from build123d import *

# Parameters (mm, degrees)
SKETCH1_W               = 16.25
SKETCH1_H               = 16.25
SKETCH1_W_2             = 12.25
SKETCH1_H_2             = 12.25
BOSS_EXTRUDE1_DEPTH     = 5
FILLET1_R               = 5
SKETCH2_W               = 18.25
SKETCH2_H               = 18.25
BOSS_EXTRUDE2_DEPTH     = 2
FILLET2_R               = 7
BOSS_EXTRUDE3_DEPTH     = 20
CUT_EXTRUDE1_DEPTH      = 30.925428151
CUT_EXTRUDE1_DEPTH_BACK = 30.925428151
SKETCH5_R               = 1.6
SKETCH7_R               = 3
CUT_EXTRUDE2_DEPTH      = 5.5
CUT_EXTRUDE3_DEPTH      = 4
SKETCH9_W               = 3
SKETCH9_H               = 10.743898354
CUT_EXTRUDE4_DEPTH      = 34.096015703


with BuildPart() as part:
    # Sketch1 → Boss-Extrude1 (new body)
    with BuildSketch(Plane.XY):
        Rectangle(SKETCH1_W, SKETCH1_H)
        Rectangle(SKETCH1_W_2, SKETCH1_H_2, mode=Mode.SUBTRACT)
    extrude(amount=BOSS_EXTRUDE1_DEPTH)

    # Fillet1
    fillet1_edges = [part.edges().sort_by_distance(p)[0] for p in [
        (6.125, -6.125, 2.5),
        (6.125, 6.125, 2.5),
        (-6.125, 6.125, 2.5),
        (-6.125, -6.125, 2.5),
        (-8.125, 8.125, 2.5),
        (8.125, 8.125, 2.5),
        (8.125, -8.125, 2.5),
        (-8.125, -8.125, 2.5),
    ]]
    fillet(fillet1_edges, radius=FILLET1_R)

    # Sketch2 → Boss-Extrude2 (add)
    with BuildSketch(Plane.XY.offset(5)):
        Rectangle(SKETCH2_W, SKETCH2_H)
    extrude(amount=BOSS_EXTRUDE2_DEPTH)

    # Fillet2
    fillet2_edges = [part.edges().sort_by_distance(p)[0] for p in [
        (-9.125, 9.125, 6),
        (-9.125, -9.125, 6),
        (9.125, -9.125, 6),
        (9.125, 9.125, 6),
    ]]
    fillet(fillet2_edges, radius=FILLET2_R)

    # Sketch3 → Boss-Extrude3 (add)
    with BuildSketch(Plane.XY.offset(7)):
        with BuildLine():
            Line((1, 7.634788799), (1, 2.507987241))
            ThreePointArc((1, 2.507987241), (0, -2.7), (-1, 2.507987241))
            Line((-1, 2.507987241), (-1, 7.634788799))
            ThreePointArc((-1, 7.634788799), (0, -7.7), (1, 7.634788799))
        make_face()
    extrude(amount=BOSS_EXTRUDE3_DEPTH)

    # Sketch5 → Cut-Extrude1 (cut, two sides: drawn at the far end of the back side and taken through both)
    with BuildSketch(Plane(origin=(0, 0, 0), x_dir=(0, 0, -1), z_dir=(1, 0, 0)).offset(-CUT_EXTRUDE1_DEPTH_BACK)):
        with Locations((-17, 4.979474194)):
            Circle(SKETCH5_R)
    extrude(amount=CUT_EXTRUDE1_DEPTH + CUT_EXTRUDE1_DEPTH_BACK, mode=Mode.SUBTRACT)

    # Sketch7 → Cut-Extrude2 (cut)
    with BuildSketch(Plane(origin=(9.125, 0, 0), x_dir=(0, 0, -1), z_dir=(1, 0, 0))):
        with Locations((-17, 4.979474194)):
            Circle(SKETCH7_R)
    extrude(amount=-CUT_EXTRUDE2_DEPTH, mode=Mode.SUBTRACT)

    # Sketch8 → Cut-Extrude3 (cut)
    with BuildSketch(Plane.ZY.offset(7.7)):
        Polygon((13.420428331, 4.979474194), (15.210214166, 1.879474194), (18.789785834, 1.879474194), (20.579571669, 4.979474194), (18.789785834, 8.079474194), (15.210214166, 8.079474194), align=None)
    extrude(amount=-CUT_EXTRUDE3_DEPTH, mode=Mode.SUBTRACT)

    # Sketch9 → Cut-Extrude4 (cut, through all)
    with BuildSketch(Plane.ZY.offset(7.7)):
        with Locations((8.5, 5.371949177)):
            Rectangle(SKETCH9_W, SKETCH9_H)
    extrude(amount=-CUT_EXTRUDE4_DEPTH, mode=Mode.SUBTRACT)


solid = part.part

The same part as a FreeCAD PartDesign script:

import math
import FreeCAD as App
import Part
import Sketcher
Q = App.Units.Quantity


def edges_at(feature, points):
    """Names of the edges that pass closest to the given points."""
    edges = feature.Shape.Edges
    near = lambda p: min(range(len(edges)), key=lambda i: edges[i].distToShape(Part.Vertex(*p))[0])
    return sorted({f"Edge{near(p) + 1}" for p in points})


def add_polygon(sketch, points):
    """Adds a closed chain of lines whose ends are joined by coincident constraints."""
    first, n = sketch.GeometryCount, len(points)
    for a, b in zip(points, points[1:] + points[:1]):
        sketch.addGeometry(Part.LineSegment(App.Vector(*a, 0), App.Vector(*b, 0)), False)
    for i in range(n):
        sketch.addConstraint(Sketcher.Constraint("Coincident", first + i, 2, first + (i + 1) % n, 1))

doc = App.newDocument("Part")
params = doc.addObject("Spreadsheet::Sheet", "Params")
for row, (alias, value) in enumerate([
    ("sketch1_width", "16.25 mm"),
    ("pad1_length", "5 mm"),
    ("fillet_radius", "5 mm"),
    ("sketch2_width", "18.25 mm"),
    ("pad2_length", "2 mm"),
    ("fillet2_radius", "7 mm"),
    ("sketch3_radius", "2.7 mm"),
    ("sketch3_radius2", "7.7 mm"),
    ("pad3_length", "20 mm"),
    ("sketch4_diameter", "3.2 mm"),
    ("sketch5_diameter", "6 mm"),
    ("pocket2_length", "5.5 mm"),
    ("pocket3_length", "4 mm"),
    ("sketch7_height", "3 mm"),
], start=1):
    params.set(f"A{row}", alias)
    params.set(f"B{row}", "=" + value)
    params.setAlias(f"B{row}", alias)

body = doc.addObject("PartDesign::Body", "Body")

sketch1 = body.newObject("Sketcher::SketchObject", "Sketch")
sketch1.AttachmentSupport = (doc.getObject("XY_Plane"), [""])
sketch1.MapMode = "FlatFace"
add_polygon(sketch1, [(-8, 8), (-8, -8), (8, -8), (8, 8)])
add_polygon(sketch1, [(6, -6), (-6, -6), (-6, 6), (6, 6)])
sketch1.addConstraint([
    Sketcher.Constraint("Vertical", 0),
    Sketcher.Constraint("Horizontal", 1),
    Sketcher.Constraint("Vertical", 2),
    Sketcher.Constraint("Horizontal", 3),
    Sketcher.Constraint("Horizontal", 4),
    Sketcher.Constraint("Vertical", 5),
    Sketcher.Constraint("Horizontal", 6),
    Sketcher.Constraint("Vertical", 7),
    Sketcher.Constraint("Symmetric", 0, 2, 2, 2, -1, 1),
    Sketcher.Constraint("Symmetric", 4, 2, 6, 2, -1, 1),
    Sketcher.Constraint("Equal", 3, 0),
    Sketcher.Constraint("Equal", 6, 5),
    Sketcher.Constraint("DistanceX", 0, 2, 4, 2, 2.0),
    Sketcher.Constraint("DistanceX", 1, 1, 1, 2, 16.25),
])
sketch1.setExpression("Constraints[21]", "Params.sketch1_width")
pad1 = body.newObject("PartDesign::Pad", "Pad")
pad1.Profile = sketch1
pad1.setExpression("Length", "Params.pad1_length")
doc.recompute()

fillet = body.newObject("PartDesign::Fillet", "Fillet")
fillet.Base = (pad1, edges_at(pad1, [
    (6.125, -6.125, 2.5),
    (6.125, 6.125, 2.5),
    (-6.125, 6.125, 2.5),
    (-6.125, -6.125, 2.5),
    (-8.125, 8.125, 2.5),
    (8.125, 8.125, 2.5),
    (8.125, -8.125, 2.5),
    (-8.125, -8.125, 2.5),
]))
fillet.setExpression("Radius", "Params.fillet_radius")

sketch2 = body.newObject("Sketcher::SketchObject", "Sketch001")
sketch2.AttachmentSupport = (doc.getObject("XY_Plane"), [""])
sketch2.MapMode = "FlatFace"
sketch2.AttachmentOffset = App.Placement(App.Vector(0, 0, 5), App.Rotation())
add_polygon(sketch2, [(-9, 9), (-9, -9), (9, -9), (9, 9)])
sketch2.addConstraint([
    Sketcher.Constraint("Vertical", 0),
    Sketcher.Constraint("Horizontal", 1),
    Sketcher.Constraint("Vertical", 2),
    Sketcher.Constraint("Horizontal", 3),
    Sketcher.Constraint("Symmetric", 0, 2, 2, 2, -1, 1),
    Sketcher.Constraint("Equal", 3, 0),
    Sketcher.Constraint("DistanceX", 1, 1, 1, 2, 18.25),
])
sketch2.setExpression("Constraints[10]", "Params.sketch2_width")
pad2 = body.newObject("PartDesign::Pad", "Pad001")
pad2.Profile = sketch2
pad2.setExpression("Length", "Params.pad2_length")
doc.recompute()

fillet2 = body.newObject("PartDesign::Fillet", "Fillet001")
fillet2.Base = (pad2, edges_at(pad2, [
    (-9.125, 9.125, 6),
    (-9.125, -9.125, 6),
    (9.125, -9.125, 6),
    (9.125, 9.125, 6),
]))
fillet2.setExpression("Radius", "Params.fillet2_radius")

sketch3 = body.newObject("Sketcher::SketchObject", "Sketch002")
sketch3.AttachmentSupport = (doc.getObject("XY_Plane"), [""])
sketch3.MapMode = "FlatFace"
sketch3.AttachmentOffset = App.Placement(App.Vector(0, 0, 7), App.Rotation())
sketch3.addGeometry([
    Part.LineSegment(App.Vector(1, 7.6, 0), App.Vector(1, 2.5, 0)),
    Part.ArcOfCircle(Part.Circle(App.Vector(0, 0, 0), App.Vector(0, 0, 1), 2.7), math.radians(112), math.radians(428)),
    Part.LineSegment(App.Vector(-1, 2.5, 0), App.Vector(-1, 7.6, 0)),
    Part.ArcOfCircle(Part.Circle(App.Vector(0, 0, 0), App.Vector(0, 0, 1), 7.7), math.radians(97), math.radians(443)),
], False)
sketch3.addConstraint([
    Sketcher.Constraint("Coincident", 0, 2, 1, 2),
    Sketcher.Constraint("Coincident", 1, 1, 2, 1),
    Sketcher.Constraint("Coincident", 2, 2, 3, 1),
    Sketcher.Constraint("Coincident", 3, 2, 0, 1),
    Sketcher.Constraint("Vertical", 0),
    Sketcher.Constraint("Vertical", 2),
    Sketcher.Constraint("Coincident", 1, 3, -1, 1),
    Sketcher.Constraint("Coincident", 3, 3, -1, 1),
    Sketcher.Constraint("Horizontal", 0, 2, 1, 1),
    Sketcher.Constraint("Radius", 1, 2.7),
    Sketcher.Constraint("Radius", 3, 7.7),
    Sketcher.Constraint("DistanceX", -1, 1, 0, 2, 1.0),
])
sketch3.setExpression("Constraints[9]", "Params.sketch3_radius")
sketch3.setExpression("Constraints[10]", "Params.sketch3_radius2")
pad3 = body.newObject("PartDesign::Pad", "Pad002")
pad3.Profile = sketch3
pad3.setExpression("Length", "Params.pad3_length")

sketch4 = body.newObject("Sketcher::SketchObject", "Sketch003")
sketch4.AttachmentSupport = (doc.getObject("YZ_Plane"), [""])
sketch4.MapMode = "FlatFace"
sketch4.addGeometry(Part.Circle(App.Vector(5, 17, 0), App.Vector(0, 0, 1), 1.6), False)
sketch4.addConstraint([
    Sketcher.Constraint("Diameter", 0, 3.2),
    Sketcher.Constraint("DistanceY", -1, 1, 0, 3, 17.0),
    Sketcher.Constraint("DistanceX", -1, 1, 0, 3, 4.979474),
])
sketch4.setExpression("Constraints[0]", "Params.sketch4_diameter")
pocket1 = body.newObject("PartDesign::Pocket", "Pocket")
pocket1.Profile = sketch4
pocket1.Type = "ThroughAll"
pocket1.Midplane = True

sketch5 = body.newObject("Sketcher::SketchObject", "Sketch004")
sketch5.AttachmentSupport = (doc.getObject("YZ_Plane"), [""])
sketch5.MapMode = "FlatFace"
sketch5.AttachmentOffset = App.Placement(App.Vector(0, 0, 9.125), App.Rotation())
sketch5.addGeometry(Part.Circle(App.Vector(5, 17, 0), App.Vector(0, 0, 1), 3), False)
sketch5.addConstraint([
    Sketcher.Constraint("Diameter", 0, 6.0),
    Sketcher.Constraint("DistanceY", -1, 1, 0, 3, 17.0),
    Sketcher.Constraint("DistanceX", -1, 1, 0, 3, 4.979474),
])
sketch5.setExpression("Constraints[0]", "Params.sketch5_diameter")
pocket2 = body.newObject("PartDesign::Pocket", "Pocket001")
pocket2.Profile = sketch5
pocket2.setExpression("Length", "Params.pocket2_length")

sketch6 = body.newObject("Sketcher::SketchObject", "Sketch005")
sketch6.AttachmentSupport = (doc.getObject("YZ_Plane"), [""])
sketch6.MapMode = "FlatFace"
sketch6.AttachmentOffset = App.Placement(App.Vector(0, 0, -7.7), App.Rotation())
add_polygon(sketch6, [(5, 13.4), (1.9, 15.2), (1.9, 18.8), (5, 20.6), (8.1, 18.8), (8.1, 15.2)])
sketch6.addConstraint([
    Sketcher.Constraint("Vertical", 1),
    Sketcher.Constraint("Vertical", 4),
    Sketcher.Constraint("Parallel", 0, 3),
    Sketcher.Constraint("Parallel", 2, 5),
    Sketcher.Constraint("Horizontal", 1, 2, 3, 2),
    Sketcher.Constraint("Horizontal", 0, 2, 4, 2),
    Sketcher.Constraint("Vertical", 2, 2, 5, 2),
    Sketcher.Constraint("Angle", 0, Q("150 deg")),
    Sketcher.Constraint("DistanceX", 1, 2, 2, 2, 3.1),
    Sketcher.Constraint("DistanceY", 1, 1, 1, 2, 3.579572),
    Sketcher.Constraint("DistanceY", -1, 1, 2, 2, 20.579572),
    Sketcher.Constraint("DistanceX", -1, 1, 0, 2, 1.879474),
])
pocket3 = body.newObject("PartDesign::Pocket", "Pocket002")
pocket3.Profile = sketch6
pocket3.setExpression("Length", "Params.pocket3_length")
pocket3.Reversed = True

sketch7 = body.newObject("Sketcher::SketchObject", "Sketch006")
sketch7.AttachmentSupport = (doc.getObject("YZ_Plane"), [""])
sketch7.MapMode = "FlatFace"
sketch7.AttachmentOffset = App.Placement(App.Vector(0, 0, -7.7), App.Rotation())
add_polygon(sketch7, [(10.7, 7), (0, 7), (0, 10), (10.7, 10)])
sketch7.addConstraint([
    Sketcher.Constraint("Horizontal", 0),
    Sketcher.Constraint("Vertical", 1),
    Sketcher.Constraint("Horizontal", 2),
    Sketcher.Constraint("Vertical", 3),
    Sketcher.Constraint("PointOnObject", 0, 2, -2),
    Sketcher.Constraint("DistanceY", 1, 1, 1, 2, 3.0),
    Sketcher.Constraint("DistanceY", -1, 1, 0, 2, 7.0),
    Sketcher.Constraint("DistanceX", 0, 2, 0, 1, 10.743898),
])
sketch7.setExpression("Constraints[9]", "Params.sketch7_height")
pocket4 = body.newObject("PartDesign::Pocket", "Pocket003")
pocket4.Profile = sketch7
pocket4.Type = "ThroughAll"
pocket4.Reversed = True

doc.recompute()
